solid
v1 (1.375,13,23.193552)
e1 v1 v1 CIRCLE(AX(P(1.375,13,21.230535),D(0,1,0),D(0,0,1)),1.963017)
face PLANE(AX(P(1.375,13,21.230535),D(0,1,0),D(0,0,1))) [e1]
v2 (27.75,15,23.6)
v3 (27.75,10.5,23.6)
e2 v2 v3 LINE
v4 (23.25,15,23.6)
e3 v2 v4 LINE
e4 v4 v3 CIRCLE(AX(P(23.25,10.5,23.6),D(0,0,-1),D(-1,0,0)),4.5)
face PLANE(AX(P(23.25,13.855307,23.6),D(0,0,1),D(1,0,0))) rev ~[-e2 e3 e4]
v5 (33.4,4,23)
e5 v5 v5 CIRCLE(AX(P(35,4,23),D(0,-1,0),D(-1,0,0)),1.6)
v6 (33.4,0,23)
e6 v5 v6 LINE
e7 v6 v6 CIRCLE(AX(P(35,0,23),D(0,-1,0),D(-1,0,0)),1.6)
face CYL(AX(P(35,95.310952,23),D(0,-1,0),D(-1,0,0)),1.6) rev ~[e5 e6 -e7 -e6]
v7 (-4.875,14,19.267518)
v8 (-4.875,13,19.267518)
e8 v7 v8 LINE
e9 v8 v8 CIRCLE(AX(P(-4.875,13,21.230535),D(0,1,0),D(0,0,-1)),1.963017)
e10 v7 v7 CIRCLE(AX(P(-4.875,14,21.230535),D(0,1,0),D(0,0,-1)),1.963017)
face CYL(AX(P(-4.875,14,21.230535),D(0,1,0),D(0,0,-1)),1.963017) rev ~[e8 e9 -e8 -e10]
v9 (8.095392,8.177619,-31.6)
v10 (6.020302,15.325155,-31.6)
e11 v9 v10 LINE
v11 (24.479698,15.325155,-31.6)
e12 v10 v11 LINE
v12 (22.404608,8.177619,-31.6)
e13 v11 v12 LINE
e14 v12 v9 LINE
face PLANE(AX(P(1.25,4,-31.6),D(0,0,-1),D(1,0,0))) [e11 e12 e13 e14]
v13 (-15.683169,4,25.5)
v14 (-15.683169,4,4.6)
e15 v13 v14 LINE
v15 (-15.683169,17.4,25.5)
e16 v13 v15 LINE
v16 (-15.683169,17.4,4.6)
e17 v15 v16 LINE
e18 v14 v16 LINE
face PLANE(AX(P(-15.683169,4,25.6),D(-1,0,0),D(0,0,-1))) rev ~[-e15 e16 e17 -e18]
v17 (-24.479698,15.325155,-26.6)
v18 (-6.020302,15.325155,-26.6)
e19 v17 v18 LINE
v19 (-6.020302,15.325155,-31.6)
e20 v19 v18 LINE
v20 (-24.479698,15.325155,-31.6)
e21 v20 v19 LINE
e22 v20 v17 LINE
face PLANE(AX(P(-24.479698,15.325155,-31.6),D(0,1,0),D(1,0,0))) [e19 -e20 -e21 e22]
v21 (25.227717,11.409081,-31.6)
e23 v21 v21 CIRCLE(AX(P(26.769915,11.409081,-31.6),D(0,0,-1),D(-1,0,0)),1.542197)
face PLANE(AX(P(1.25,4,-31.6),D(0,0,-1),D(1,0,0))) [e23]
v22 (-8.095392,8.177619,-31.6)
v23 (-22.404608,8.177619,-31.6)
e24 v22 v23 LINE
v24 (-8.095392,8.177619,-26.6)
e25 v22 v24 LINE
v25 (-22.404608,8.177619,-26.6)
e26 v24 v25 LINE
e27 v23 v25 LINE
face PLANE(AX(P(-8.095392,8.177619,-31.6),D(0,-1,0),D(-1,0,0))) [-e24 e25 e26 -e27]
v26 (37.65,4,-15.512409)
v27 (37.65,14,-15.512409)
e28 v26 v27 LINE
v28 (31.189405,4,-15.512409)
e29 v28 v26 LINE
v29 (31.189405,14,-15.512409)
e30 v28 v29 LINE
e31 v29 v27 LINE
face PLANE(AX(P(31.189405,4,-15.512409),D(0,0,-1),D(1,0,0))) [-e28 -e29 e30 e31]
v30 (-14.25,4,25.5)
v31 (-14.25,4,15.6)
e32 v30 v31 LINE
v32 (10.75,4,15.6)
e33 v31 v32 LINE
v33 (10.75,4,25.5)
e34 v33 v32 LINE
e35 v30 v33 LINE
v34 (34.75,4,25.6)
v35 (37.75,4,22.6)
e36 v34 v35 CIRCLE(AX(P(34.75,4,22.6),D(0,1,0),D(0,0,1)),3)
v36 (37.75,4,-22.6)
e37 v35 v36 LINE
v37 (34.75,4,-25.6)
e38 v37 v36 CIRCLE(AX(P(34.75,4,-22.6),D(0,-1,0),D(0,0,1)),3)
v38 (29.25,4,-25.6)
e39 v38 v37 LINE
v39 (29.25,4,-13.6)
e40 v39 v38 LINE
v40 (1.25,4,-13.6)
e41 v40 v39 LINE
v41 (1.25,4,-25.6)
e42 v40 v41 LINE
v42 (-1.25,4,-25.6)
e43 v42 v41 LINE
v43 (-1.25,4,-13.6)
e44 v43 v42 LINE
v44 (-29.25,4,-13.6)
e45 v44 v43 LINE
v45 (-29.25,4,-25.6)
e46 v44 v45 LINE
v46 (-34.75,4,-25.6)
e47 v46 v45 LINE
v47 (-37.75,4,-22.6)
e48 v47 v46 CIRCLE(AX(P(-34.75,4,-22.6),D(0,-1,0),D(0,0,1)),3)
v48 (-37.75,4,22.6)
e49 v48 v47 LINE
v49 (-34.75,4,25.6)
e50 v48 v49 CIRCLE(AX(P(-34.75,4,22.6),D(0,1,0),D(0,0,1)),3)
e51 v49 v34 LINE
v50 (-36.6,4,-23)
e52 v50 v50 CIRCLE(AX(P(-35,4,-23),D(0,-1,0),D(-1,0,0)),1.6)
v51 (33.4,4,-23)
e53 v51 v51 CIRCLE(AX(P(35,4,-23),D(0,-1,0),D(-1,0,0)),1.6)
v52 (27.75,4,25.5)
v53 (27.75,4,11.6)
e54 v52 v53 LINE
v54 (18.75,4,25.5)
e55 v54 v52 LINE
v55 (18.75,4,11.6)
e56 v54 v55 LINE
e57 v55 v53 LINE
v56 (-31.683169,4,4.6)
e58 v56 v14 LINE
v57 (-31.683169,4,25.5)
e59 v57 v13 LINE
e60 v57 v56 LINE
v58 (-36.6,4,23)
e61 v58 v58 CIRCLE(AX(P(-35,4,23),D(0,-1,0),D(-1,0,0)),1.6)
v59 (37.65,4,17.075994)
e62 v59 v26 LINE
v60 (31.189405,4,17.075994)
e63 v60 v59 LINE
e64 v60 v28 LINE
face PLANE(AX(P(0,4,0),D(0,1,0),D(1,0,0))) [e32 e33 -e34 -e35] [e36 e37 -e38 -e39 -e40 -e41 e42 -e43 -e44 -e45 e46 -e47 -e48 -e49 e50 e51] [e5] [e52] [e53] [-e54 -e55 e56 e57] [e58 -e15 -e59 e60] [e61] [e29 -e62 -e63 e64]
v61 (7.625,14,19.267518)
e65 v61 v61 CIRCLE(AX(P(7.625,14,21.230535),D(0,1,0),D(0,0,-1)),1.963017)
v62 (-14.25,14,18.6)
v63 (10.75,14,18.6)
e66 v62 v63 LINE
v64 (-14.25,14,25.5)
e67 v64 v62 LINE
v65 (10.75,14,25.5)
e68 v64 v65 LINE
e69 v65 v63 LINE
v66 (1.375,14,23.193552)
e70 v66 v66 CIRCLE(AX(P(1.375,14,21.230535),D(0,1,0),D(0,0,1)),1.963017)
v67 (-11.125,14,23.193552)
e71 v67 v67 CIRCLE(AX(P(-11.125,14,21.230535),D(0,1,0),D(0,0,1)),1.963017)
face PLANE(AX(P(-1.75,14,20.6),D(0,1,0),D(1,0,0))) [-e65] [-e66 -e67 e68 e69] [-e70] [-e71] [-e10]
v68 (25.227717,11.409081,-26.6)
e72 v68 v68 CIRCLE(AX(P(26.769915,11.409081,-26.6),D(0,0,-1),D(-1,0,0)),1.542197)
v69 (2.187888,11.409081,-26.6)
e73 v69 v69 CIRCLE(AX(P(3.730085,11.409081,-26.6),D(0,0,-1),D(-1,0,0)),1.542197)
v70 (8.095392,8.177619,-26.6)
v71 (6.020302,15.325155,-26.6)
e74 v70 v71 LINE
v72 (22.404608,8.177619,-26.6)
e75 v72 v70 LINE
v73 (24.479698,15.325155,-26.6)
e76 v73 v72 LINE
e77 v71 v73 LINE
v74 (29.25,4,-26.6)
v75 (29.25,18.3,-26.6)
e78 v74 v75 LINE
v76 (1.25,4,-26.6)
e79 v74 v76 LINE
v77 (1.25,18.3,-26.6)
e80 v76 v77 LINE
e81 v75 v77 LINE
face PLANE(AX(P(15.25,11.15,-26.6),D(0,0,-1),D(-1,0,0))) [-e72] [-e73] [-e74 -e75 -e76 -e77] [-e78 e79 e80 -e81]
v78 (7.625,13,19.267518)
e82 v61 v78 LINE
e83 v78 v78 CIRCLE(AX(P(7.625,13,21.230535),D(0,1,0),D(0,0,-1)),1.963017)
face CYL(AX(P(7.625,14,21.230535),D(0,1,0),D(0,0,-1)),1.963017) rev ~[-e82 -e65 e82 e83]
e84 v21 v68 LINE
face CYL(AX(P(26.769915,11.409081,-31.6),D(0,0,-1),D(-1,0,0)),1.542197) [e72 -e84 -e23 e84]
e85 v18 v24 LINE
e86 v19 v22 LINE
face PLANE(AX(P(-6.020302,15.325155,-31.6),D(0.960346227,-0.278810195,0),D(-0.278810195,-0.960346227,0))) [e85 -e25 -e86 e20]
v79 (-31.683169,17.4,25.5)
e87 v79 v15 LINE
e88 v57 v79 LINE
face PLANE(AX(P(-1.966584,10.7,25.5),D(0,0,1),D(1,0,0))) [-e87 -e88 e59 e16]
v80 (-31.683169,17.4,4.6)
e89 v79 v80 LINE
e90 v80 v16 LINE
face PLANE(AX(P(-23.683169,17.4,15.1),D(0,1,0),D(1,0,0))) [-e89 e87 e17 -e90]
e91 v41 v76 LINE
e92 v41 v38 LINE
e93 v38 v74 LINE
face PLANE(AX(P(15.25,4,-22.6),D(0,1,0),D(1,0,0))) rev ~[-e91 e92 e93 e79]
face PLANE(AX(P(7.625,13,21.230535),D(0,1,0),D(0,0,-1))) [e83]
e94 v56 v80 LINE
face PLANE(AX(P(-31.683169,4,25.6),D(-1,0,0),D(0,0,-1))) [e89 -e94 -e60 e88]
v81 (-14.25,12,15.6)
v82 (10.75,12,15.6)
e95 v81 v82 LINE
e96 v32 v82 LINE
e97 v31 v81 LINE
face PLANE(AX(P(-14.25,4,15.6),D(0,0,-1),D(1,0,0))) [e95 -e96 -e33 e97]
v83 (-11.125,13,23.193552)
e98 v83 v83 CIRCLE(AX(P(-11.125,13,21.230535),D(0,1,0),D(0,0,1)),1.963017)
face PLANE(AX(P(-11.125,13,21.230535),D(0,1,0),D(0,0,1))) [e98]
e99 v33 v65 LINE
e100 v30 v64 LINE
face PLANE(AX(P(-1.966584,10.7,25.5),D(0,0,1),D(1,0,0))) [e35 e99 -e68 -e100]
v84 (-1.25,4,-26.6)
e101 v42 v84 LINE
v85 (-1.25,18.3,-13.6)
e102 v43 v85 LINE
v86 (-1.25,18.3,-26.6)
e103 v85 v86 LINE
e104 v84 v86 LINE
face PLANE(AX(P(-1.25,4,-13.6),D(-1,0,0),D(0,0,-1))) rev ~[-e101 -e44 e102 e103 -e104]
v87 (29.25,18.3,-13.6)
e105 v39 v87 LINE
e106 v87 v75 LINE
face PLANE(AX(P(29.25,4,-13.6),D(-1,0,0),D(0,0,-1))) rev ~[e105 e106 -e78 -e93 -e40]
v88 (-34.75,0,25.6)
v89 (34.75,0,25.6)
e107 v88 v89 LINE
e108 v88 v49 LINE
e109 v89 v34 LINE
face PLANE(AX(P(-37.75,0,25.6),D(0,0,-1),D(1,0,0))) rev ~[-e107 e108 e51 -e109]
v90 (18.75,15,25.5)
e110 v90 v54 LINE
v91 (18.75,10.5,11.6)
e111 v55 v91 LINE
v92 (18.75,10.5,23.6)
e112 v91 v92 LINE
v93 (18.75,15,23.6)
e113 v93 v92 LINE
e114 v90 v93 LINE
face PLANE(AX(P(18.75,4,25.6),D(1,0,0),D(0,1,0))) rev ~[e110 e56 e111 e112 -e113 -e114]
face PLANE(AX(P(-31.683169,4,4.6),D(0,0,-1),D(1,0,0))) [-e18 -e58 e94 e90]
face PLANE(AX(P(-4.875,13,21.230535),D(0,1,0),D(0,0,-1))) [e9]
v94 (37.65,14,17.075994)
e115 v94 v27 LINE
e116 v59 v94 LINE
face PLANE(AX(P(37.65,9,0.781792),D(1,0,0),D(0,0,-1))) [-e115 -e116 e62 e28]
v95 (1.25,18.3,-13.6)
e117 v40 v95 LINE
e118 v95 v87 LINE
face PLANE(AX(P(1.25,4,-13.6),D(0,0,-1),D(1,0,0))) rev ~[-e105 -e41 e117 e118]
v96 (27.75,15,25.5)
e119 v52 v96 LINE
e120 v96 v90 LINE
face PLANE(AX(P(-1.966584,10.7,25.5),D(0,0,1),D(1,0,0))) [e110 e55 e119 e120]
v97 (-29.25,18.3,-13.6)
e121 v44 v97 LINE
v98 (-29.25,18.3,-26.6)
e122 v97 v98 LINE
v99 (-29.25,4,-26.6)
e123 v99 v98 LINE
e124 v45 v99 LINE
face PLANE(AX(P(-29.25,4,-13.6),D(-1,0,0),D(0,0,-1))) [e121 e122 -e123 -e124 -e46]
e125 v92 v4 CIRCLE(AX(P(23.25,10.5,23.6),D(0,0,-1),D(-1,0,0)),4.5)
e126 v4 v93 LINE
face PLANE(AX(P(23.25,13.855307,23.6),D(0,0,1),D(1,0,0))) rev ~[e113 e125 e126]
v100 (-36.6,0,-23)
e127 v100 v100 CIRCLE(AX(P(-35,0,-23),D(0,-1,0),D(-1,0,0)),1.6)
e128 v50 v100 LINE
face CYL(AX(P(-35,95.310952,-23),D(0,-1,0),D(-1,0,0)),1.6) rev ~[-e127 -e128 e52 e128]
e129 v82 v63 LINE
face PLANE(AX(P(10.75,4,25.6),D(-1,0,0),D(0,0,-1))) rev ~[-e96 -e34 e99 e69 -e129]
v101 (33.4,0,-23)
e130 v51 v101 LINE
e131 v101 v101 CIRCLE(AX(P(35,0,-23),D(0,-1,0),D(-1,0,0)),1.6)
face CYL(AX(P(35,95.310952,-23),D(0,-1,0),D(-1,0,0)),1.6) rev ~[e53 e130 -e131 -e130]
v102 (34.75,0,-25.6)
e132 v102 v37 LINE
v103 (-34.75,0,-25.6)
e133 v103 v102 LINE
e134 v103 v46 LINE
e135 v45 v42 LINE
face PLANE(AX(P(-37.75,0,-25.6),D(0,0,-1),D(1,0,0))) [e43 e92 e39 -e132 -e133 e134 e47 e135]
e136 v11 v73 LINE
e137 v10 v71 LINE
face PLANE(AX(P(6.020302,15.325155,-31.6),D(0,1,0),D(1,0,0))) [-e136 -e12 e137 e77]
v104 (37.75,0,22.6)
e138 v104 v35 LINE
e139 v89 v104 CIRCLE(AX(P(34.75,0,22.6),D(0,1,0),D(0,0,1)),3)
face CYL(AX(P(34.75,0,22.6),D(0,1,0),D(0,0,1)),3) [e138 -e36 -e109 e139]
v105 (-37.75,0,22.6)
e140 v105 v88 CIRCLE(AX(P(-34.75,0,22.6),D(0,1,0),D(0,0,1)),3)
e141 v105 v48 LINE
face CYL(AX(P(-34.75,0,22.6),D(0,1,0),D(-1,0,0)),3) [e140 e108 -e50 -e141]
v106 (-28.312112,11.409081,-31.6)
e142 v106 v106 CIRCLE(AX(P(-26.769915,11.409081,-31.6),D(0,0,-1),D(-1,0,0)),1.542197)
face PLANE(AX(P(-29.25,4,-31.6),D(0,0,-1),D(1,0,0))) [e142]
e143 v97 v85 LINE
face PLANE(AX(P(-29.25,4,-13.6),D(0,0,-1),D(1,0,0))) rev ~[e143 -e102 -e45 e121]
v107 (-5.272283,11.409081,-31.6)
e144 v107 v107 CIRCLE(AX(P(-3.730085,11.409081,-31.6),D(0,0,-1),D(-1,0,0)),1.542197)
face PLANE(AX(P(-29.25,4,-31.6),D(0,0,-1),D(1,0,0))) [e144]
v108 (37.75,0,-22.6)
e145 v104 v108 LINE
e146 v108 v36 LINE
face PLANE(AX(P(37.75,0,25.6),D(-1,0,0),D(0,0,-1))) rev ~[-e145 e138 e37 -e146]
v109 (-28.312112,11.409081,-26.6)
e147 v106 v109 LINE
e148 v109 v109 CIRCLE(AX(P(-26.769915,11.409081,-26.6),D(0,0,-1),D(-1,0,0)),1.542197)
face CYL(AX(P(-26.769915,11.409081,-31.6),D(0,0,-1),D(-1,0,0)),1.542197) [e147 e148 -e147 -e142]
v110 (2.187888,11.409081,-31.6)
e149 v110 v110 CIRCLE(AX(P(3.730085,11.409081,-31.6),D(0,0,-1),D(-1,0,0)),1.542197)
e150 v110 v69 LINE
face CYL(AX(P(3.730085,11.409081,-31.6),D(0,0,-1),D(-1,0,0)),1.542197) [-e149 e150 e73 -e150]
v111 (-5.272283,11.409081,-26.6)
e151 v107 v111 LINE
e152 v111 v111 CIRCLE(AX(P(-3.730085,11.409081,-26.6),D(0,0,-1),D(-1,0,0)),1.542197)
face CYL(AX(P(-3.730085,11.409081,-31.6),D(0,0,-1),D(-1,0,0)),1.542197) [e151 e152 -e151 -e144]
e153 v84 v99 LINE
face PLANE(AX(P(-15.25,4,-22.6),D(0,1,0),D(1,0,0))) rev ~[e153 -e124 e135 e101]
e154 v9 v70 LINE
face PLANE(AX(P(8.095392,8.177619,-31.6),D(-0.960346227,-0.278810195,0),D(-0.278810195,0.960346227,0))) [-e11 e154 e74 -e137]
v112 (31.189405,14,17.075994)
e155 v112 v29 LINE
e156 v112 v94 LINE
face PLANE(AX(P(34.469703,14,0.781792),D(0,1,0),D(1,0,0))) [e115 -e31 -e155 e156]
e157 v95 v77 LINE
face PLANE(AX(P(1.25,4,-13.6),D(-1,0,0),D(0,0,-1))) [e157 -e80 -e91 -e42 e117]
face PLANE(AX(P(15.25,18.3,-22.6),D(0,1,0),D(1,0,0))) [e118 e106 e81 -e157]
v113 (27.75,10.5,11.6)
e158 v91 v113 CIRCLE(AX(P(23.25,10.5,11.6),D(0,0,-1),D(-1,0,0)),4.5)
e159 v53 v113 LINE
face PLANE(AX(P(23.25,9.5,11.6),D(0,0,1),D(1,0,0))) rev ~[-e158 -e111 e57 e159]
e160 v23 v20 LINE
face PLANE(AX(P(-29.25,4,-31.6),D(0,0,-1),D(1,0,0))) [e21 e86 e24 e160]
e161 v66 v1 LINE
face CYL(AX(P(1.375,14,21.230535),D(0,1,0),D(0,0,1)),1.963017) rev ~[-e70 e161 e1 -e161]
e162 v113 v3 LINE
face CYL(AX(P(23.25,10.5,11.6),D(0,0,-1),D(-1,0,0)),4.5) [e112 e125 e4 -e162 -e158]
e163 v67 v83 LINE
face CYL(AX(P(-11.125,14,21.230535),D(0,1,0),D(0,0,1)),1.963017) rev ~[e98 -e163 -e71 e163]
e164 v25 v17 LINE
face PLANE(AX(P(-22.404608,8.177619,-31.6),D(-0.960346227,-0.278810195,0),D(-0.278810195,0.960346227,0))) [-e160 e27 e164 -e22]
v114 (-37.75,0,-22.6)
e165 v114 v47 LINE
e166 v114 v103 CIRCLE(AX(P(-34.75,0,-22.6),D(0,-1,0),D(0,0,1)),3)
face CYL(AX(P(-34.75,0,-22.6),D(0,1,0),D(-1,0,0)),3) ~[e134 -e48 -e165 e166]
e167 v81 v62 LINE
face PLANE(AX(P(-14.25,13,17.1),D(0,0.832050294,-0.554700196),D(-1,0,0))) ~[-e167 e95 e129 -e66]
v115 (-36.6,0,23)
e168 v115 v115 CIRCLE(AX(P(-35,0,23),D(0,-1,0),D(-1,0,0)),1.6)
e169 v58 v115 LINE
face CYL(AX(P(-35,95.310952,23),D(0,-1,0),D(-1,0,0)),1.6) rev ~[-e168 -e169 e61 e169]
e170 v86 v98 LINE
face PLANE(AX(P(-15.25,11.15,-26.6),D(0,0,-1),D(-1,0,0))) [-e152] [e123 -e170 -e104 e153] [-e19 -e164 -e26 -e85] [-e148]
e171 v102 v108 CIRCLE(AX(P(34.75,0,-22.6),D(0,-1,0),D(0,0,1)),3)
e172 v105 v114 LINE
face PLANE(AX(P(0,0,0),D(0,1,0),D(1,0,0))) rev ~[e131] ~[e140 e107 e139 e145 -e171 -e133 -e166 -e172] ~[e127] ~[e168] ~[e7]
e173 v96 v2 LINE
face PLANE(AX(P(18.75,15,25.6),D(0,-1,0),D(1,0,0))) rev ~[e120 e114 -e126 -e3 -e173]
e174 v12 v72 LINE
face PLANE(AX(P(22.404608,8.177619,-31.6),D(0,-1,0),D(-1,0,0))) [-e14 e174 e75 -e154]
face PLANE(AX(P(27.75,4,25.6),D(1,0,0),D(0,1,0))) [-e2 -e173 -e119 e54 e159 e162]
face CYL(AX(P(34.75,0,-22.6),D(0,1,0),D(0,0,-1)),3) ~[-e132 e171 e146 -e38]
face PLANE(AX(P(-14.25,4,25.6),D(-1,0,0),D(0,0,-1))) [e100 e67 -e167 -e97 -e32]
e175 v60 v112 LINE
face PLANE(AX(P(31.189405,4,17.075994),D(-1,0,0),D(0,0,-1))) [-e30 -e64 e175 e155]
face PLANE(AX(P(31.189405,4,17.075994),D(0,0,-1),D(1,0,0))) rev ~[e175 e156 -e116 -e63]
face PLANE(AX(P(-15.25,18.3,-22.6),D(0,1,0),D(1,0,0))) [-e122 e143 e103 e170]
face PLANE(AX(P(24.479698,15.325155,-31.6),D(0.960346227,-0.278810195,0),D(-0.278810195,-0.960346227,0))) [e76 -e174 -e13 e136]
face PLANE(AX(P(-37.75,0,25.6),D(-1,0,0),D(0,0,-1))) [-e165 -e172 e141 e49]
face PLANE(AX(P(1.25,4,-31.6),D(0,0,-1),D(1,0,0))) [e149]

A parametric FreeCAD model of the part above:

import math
import FreeCAD as App
import Part
import Sketcher

V = App.Vector


def edges_at(feature, points):
    """Names of the edges that pass closest to the given points."""
    edges = feature.Shape.Edges
    near = lambda p: min(range(len(edges)), key=lambda i: edges[i].distToShape(Part.Vertex(*p))[0])
    return sorted({f"Edge{near(p) + 1}" for p in points})

doc = App.newDocument("Part")
params = doc.addObject("Spreadsheet::Sheet", "Params")
for row, (alias, value) in enumerate([
    ("sketch1_width", "75.5 mm"),
    ("sketch1_height", "51.2 mm"),
    ("pad1_length", "4 mm"),
    ("sketch2_diameter", "3.2 mm"),
    ("hole_diameter", "3.2 mm"),
    ("fillet_radius", "3 mm"),
    ("sketch3_width", "9 mm"),
    ("sketch3_height", "11 mm"),
    ("pad2_length", "14 mm"),
    ("sketch4_radius", "4.5 mm"),
    ("sketch4_width", "1 mm"),
    ("sketch4_height", "5.5 mm"),
    ("pocket1_length", "12 mm"),
    ("sketch5_width", "25 mm"),
    ("sketch5_height", "10 mm"),
    ("pad3_length", "10 mm"),
    ("pocket2_length", "1 mm"),
    ("chamfer_size", "2 mm"),
    ("chamfer_size2", "3 mm"),
    ("pad4_length", "10 mm"),
    ("sketch8_width", "28 mm"),
    ("sketch8_height", "18 mm"),
    ("pad5_length", "14.3 mm"),
    ("sketch9_width", "28 mm"),
    ("sketch9_height", "14.3 mm"),
    ("pocket3_length", "5 mm"),
    ("sketch10_width", "16 mm"),
    ("sketch10_height", "21 mm"),
    ("pad6_length", "13.4 mm"),
    ("sketch11_height", "13.4 mm"),
    ("pocket4_length", "0.1 mm"),
    ("sketch12_width", "10 mm"),
    ("pocket5_length", "0.1 mm"),
], start=1):
    params.set(f"A{row}", alias)
    params.set(f"B{row}", "=" + value)
    params.setAlias(f"B{row}", alias)

body = doc.addObject("PartDesign::Body", "Body")

# Sketch on XZ plane
sketch1 = body.newObject("Sketcher::SketchObject", "Sketch")
sketch1.AttachmentSupport = (doc.getObject("XZ_Plane"), [""])
sketch1.MapMode = "FlatFace"
sketch1.addGeometry([
    Part.LineSegment(V(-38, -26, 0), V(-38, 26, 0)),
    Part.LineSegment(V(-38, 26, 0), V(38, 26, 0)),
    Part.LineSegment(V(38, 26, 0), V(38, -26, 0)),
    Part.LineSegment(V(38, -26, 0), V(-38, -26, 0)),
], False)
sketch1.addConstraint([
    Sketcher.Constraint("Coincident", 0, 2, 1, 1),
    Sketcher.Constraint("Coincident", 1, 2, 2, 1),
    Sketcher.Constraint("Coincident", 2, 2, 3, 1),
    Sketcher.Constraint("Coincident", 3, 2, 0, 1),
    Sketcher.Constraint("Vertical", 0),
    Sketcher.Constraint("Horizontal", 1),
    Sketcher.Constraint("Vertical", 2),
    Sketcher.Constraint("Horizontal", 3),
    Sketcher.Constraint("Symmetric", 0, 2, 2, 2, -1, 1),
    Sketcher.Constraint("DistanceX", 1, 1, 1, 2, 75.5),
    Sketcher.Constraint("DistanceY", 0, 1, 0, 2, 51.2),
])
sketch1.setExpression("Constraints[9]", "Params.sketch1_width")
sketch1.setExpression("Constraints[10]", "Params.sketch1_height")
pad1 = body.newObject("PartDesign::Pad", "Pad")
pad1.Profile = sketch1
pad1.setExpression("Length", "Params.pad1_length")
pad1.Reversed = True

# Sketch on XZ plane
sketch2 = body.newObject("Sketcher::SketchObject", "Sketch001")
sketch2.AttachmentSupport = (doc.getObject("XZ_Plane"), [""])
sketch2.MapMode = "FlatFace"
sketch2.AttachmentOffset = App.Placement(V(0, 0, -4), App.Rotation())
sketch2.addGeometry([
    Part.Circle(V(-35, -23, 0), V(0, 0, 1), 1.6),
    Part.Circle(V(35, -23, 0), V(0, 0, 1), 1.6),
    Part.Circle(V(-35, 23, 0), V(0, 0, 1), 1.6),
    Part.Circle(V(35, 23, 0), V(0, 0, 1), 1.6),
], False)
sketch2.addConstraint([
    Sketcher.Constraint("Equal", 0, 1),
    Sketcher.Constraint("Equal", 1, 2),
    Sketcher.Constraint("Equal", 2, 3),
    Sketcher.Constraint("Symmetric", 1, 3, 2, 3, -1, 1),
    Sketcher.Constraint("Symmetric", 0, 3, 3, 3, -1, 1),
    Sketcher.Constraint("Symmetric", 0, 3, 1, 3, -2),
    Sketcher.Constraint("Diameter", 0, 3.2),
    Sketcher.Constraint("DistanceX", 0, 3, -1, 1, 35.0),
    Sketcher.Constraint("DistanceY", 0, 3, -1, 1, 23.0),
])
sketch2.setExpression("Constraints[6]", "Params.sketch2_diameter")
doc.recompute()
hole = body.newObject("PartDesign::Hole", "Hole")
hole.Profile = sketch2
hole.ThreadType = "None"
hole.setExpression("Diameter", "Params.hole_diameter")
hole.DepthType = "ThroughAll"
hole.Reversed = True
doc.recompute()

fillet = body.newObject("PartDesign::Fillet", "Fillet")
fillet.Base = (hole, edges_at(hole, [
    (-37.75, 2, -25.6),
    (37.75, 2, -25.6),
    (37.75, 2, 25.6),
    (-37.75, 2, 25.6),
]))
fillet.setExpression("Radius", "Params.fillet_radius")

# Sketch on XY plane
sketch3 = body.newObject("Sketcher::SketchObject", "Sketch002")
sketch3.AttachmentSupport = (doc.getObject("XY_Plane"), [""])
sketch3.MapMode = "FlatFace"
sketch3.AttachmentOffset = App.Placement(V(0, 0, 25.6), App.Rotation())
sketch3.addGeometry([
    Part.LineSegment(V(19, 15, 0), V(19, 4, 0)),
    Part.LineSegment(V(19, 4, 0), V(28, 4, 0)),
    Part.LineSegment(V(28, 4, 0), V(28, 15, 0)),
    Part.LineSegment(V(28, 15, 0), V(19, 15, 0)),
], False)
sketch3.addConstraint([
    Sketcher.Constraint("Coincident", 0, 2, 1, 1),
    Sketcher.Constraint("Coincident", 1, 2, 2, 1),
    Sketcher.Constraint("Coincident", 2, 2, 3, 1),
    Sketcher.Constraint("Coincident", 3, 2, 0, 1),
    Sketcher.Constraint("Vertical", 0),
    Sketcher.Constraint("Horizontal", 1),
    Sketcher.Constraint("Vertical", 2),
    Sketcher.Constraint("Horizontal", 3),
    Sketcher.Constraint("DistanceX", 1, 1, 1, 2, 9.0),
    Sketcher.Constraint("DistanceY", 0, 2, 0, 1, 11.0),
    Sketcher.Constraint("DistanceY", -1, 1, 0, 2, 4.0),
    Sketcher.Constraint("DistanceX", -1, 1, 0, 2, 18.75),
])
sketch3.setExpression("Constraints[8]", "Params.sketch3_width")
sketch3.setExpression("Constraints[9]", "Params.sketch3_height")
pad2 = body.newObject("PartDesign::Pad", "Pad001")
pad2.Profile = sketch3
pad2.setExpression("Length", "Params.pad2_length")
pad2.Reversed = True

# Sketch on XY plane
sketch4 = body.newObject("Sketcher::SketchObject", "Sketch003")
sketch4.AttachmentSupport = (doc.getObject("XY_Plane"), [""])
sketch4.MapMode = "FlatFace"
sketch4.AttachmentOffset = App.Placement(V(0, 0, 11.6), App.Rotation())
sketch4.addGeometry([
    Part.LineSegment(V(28.8, 10.5, 0), V(27.8, 10.5, 0)),  # 0
    Part.ArcOfCircle(Part.Circle(V(23.2, 10.5, 0), V(0, 0, 1), 4.5), math.radians(0), math.radians(180)),  # 1
    Part.LineSegment(V(18.8, 10.5, 0), V(17.8, 10.5, 0)),  # 2
    Part.LineSegment(V(17.8, 10.5, 0), V(17.8, 16, 0)),  # 3
    Part.LineSegment(V(17.8, 16, 0), V(28.8, 16, 0)),  # 4
    Part.LineSegment(V(28.8, 16, 0), V(28.8, 10.5, 0)),  # 5
], False)
sketch4.addConstraint([
    Sketcher.Constraint("Coincident", 0, 2, 1, 1),
    Sketcher.Constraint("Coincident", 1, 2, 2, 1),
    Sketcher.Constraint("Coincident", 2, 2, 3, 1),
    Sketcher.Constraint("Coincident", 3, 2, 4, 1),
    Sketcher.Constraint("Coincident", 4, 2, 5, 1),
    Sketcher.Constraint("Coincident", 5, 2, 0, 1),
    Sketcher.Constraint("Horizontal", 0),
    Sketcher.Constraint("Horizontal", 2),
    Sketcher.Constraint("Vertical", 3),
    Sketcher.Constraint("Horizontal", 4),
    Sketcher.Constraint("Vertical", 5),
    Sketcher.Constraint("Horizontal", 1, 3, 0, 2),
    Sketcher.Constraint("Horizontal", 0, 2, 1, 2),
    Sketcher.Constraint("Equal", 0, 2),
    Sketcher.Constraint("Radius", 1, 4.5),
    Sketcher.Constraint("DistanceX", 0, 2, 0, 1, 1.0),
    Sketcher.Constraint("DistanceY", 3, 1, 3, 2, 5.5),
    Sketcher.Constraint("DistanceY", -1, 1, 3, 2, 16.0),
    Sketcher.Constraint("DistanceX", -1, 1, 1, 3, 23.25),
])
sketch4.setExpression("Constraints[14]", "Params.sketch4_radius")
sketch4.setExpression("Constraints[15]", "Params.sketch4_width")
sketch4.setExpression("Constraints[16]", "Params.sketch4_height")
pocket1 = body.newObject("PartDesign::Pocket", "Pocket")
pocket1.Profile = sketch4
pocket1.setExpression("Length", "Params.pocket1_length")
pocket1.Reversed = True

# Sketch on XZ plane
sketch5 = body.newObject("Sketcher::SketchObject", "Sketch004")
sketch5.AttachmentSupport = (doc.getObject("XZ_Plane"), [""])
sketch5.MapMode = "FlatFace"
sketch5.AttachmentOffset = App.Placement(V(0, 0, -4), App.Rotation())
sketch5.addGeometry([
    Part.LineSegment(V(-14, 16, 0), V(-14, 26, 0)),
    Part.LineSegment(V(-14, 26, 0), V(11, 26, 0)),
    Part.LineSegment(V(11, 26, 0), V(11, 16, 0)),
    Part.LineSegment(V(11, 16, 0), V(-14, 16, 0)),
], False)
sketch5.addConstraint([
    Sketcher.Constraint("Coincident", 0, 2, 1, 1),
    Sketcher.Constraint("Coincident", 1, 2, 2, 1),
    Sketcher.Constraint("Coincident", 2, 2, 3, 1),
    Sketcher.Constraint("Coincident", 3, 2, 0, 1),
    Sketcher.Constraint("Vertical", 0),
    Sketcher.Constraint("Horizontal", 1),
    Sketcher.Constraint("Vertical", 2),
    Sketcher.Constraint("Horizontal", 3),
    Sketcher.Constraint("DistanceX", 1, 1, 1, 2, 25.0),
    Sketcher.Constraint("DistanceY", 0, 1, 0, 2, 10.0),
    Sketcher.Constraint("DistanceY", -1, 1, 0, 2, 25.6),
    Sketcher.Constraint("DistanceX", 0, 2, -1, 1, 14.25),
])
sketch5.setExpression("Constraints[8]", "Params.sketch5_width")
sketch5.setExpression("Constraints[9]", "Params.sketch5_height")
pad3 = body.newObject("PartDesign::Pad", "Pad002")
pad3.Profile = sketch5
pad3.setExpression("Length", "Params.pad3_length")
pad3.Reversed = True

# Sketch on XZ plane
sketch6 = body.newObject("Sketcher::SketchObject", "Sketch005")
sketch6.AttachmentSupport = (doc.getObject("XZ_Plane"), [""])
sketch6.MapMode = "FlatFace"
sketch6.AttachmentOffset = App.Placement(V(0, 0, -14), App.Rotation())
sketch6.addGeometry([
    Part.Circle(V(-11.1, 21.2, 0), V(0, 0, 1), 2),
    Part.Circle(V(-4.9, 21.2, 0), V(0, 0, 1), 2),
    Part.Circle(V(7.6, 21.2, 0), V(0, 0, 1), 2),
    Part.Circle(V(1.4, 21.2, 0), V(0, 0, 1), 2),
], False)
sketch6.addConstraint([
    Sketcher.Constraint("Equal", 0, 1),
    Sketcher.Constraint("Equal", 1, 2),
    Sketcher.Constraint("Equal", 2, 3),
    Sketcher.Constraint("Horizontal", 0, 3, 1, 3),
    Sketcher.Constraint("Horizontal", 1, 3, 2, 3),
    Sketcher.Constraint("Horizontal", 2, 3, 3, 3),
    Sketcher.Constraint("DistanceX", 1, 3, 2, 3, 12.5),
    Sketcher.Constraint("DistanceX", 0, 3, 3, 3, 12.5),
    Sketcher.Constraint("DistanceX", 0, 3, 1, 3, 6.25),
    Sketcher.Constraint("Diameter", 0, 3.926034),
    Sketcher.Constraint("DistanceX", 0, 3, -1, 1, 11.125),
    Sketcher.Constraint("DistanceY", -1, 1, 0, 3, 21.230535),
])
pocket2 = body.newObject("PartDesign::Pocket", "Pocket001")
pocket2.Profile = sketch6
pocket2.setExpression("Length", "Params.pocket2_length")
pocket2.Reversed = True
doc.recompute()

chamfer = body.newObject("PartDesign::Chamfer", "Chamfer")
chamfer.Base = (pocket2, edges_at(pocket2, [(-1.75, 14, 15.6)]))
chamfer.ChamferType = "Two distances"
chamfer.setExpression("Size", "Params.chamfer_size")
chamfer.setExpression("Size2", "Params.chamfer_size2")

# Sketch on XZ plane
sketch7 = body.newObject("Sketcher::SketchObject", "Sketch006")
sketch7.AttachmentSupport = (doc.getObject("XZ_Plane"), [""])
sketch7.MapMode = "FlatFace"
sketch7.AttachmentOffset = App.Placement(V(0, 0, -4), App.Rotation())
sketch7.addGeometry([
    Part.LineSegment(V(31, -16, 0), V(31, 17, 0)),
    Part.LineSegment(V(31, 17, 0), V(38, 17, 0)),
    Part.LineSegment(V(38, 17, 0), V(38, -16, 0)),
    Part.LineSegment(V(38, -16, 0), V(31, -16, 0)),
], False)
sketch7.addConstraint([
    Sketcher.Constraint("Coincident", 0, 2, 1, 1),
    Sketcher.Constraint("Coincident", 1, 2, 2, 1),
    Sketcher.Constraint("Coincident", 2, 2, 3, 1),
    Sketcher.Constraint("Coincident", 3, 2, 0, 1),
    Sketcher.Constraint("Vertical", 0),
    Sketcher.Constraint("Horizontal", 1),
    Sketcher.Constraint("Vertical", 2),
    Sketcher.Constraint("Horizontal", 3),
    Sketcher.Constraint("DistanceX", -1, 1, 1, 2, 37.75),
    Sketcher.Constraint("DistanceX", 1, 1, 1, 2, 6.560595),
    Sketcher.Constraint("DistanceY", 0, 1, 0, 2, 32.588402),
    Sketcher.Constraint("DistanceY", 2, 2, -1, 1, 15.512409),
])
pad4 = body.newObject("PartDesign::Pad", "Pad003")
pad4.Profile = sketch7
pad4.setExpression("Length", "Params.pad4_length")
pad4.Reversed = True

# Sketch on XZ plane
sketch8 = body.newObject("Sketcher::SketchObject", "Sketch007")
sketch8.AttachmentSupport = (doc.getObject("XZ_Plane"), [""])
sketch8.MapMode = "FlatFace"
sketch8.AttachmentOffset = App.Placement(V(0, 0, -4), App.Rotation())
sketch8.addGeometry([
    Part.LineSegment(V(-29, -32, 0), V(-29, -14, 0)),  # 0
    Part.LineSegment(V(-29, -14, 0), V(-1, -14, 0)),  # 1
    Part.LineSegment(V(-1, -14, 0), V(-1, -32, 0)),  # 2
    Part.LineSegment(V(-1, -32, 0), V(-29, -32, 0)),  # 3
    Part.LineSegment(V(1, -32, 0), V(1, -14, 0)),  # 4
    Part.LineSegment(V(1, -14, 0), V(29, -14, 0)),  # 5
    Part.LineSegment(V(29, -14, 0), V(29, -32, 0)),  # 6
    Part.LineSegment(V(29, -32, 0), V(1, -32, 0)),  # 7
], False)
sketch8.addConstraint([
    Sketcher.Constraint("Coincident", 0, 2, 1, 1),
    Sketcher.Constraint("Coincident", 1, 2, 2, 1),
    Sketcher.Constraint("Coincident", 2, 2, 3, 1),
    Sketcher.Constraint("Coincident", 3, 2, 0, 1),
    Sketcher.Constraint("Coincident", 4, 2, 5, 1),
    Sketcher.Constraint("Coincident", 5, 2, 6, 1),
    Sketcher.Constraint("Coincident", 6, 2, 7, 1),
    Sketcher.Constraint("Coincident", 7, 2, 4, 1),
    Sketcher.Constraint("Vertical", 0),
    Sketcher.Constraint("Horizontal", 1),
    Sketcher.Constraint("Vertical", 2),
    Sketcher.Constraint("Horizontal", 3),
    Sketcher.Constraint("Vertical", 4),
    Sketcher.Constraint("Horizontal", 5),
    Sketcher.Constraint("Vertical", 6),
    Sketcher.Constraint("Horizontal", 7),
    Sketcher.Constraint("Symmetric", 1, 2, 4, 2, -2),
    Sketcher.Constraint("Symmetric", 3, 2, 6, 2, -2),
    Sketcher.Constraint("DistanceX", 1, 1, 1, 2, 28.0),
    Sketcher.Constraint("DistanceY", 0, 1, 0, 2, 18.0),
    Sketcher.Constraint("DistanceY", 0, 2, -1, 1, 13.6),
    Sketcher.Constraint("DistanceX", 1, 2, 4, 2, 2.5),
])
sketch8.setExpression("Constraints[18]", "Params.sketch8_width")
sketch8.setExpression("Constraints[19]", "Params.sketch8_height")
pad5 = body.newObject("PartDesign::Pad", "Pad004")
pad5.Profile = sketch8
pad5.setExpression("Length", "Params.pad5_length")
pad5.Reversed = True

# Sketch on XY plane
sketch9 = body.newObject("Sketcher::SketchObject", "Sketch008")
sketch9.AttachmentSupport = (doc.getObject("XY_Plane"), [""])
sketch9.MapMode = "FlatFace"
sketch9.AttachmentOffset = App.Placement(V(0, 0, -31.6), App.Rotation())
sketch9.addGeometry([
    Part.LineSegment(V(29.2, 18.3, 0), V(29.2, 4, 0)),  # 0
    Part.LineSegment(V(29.2, 4, 0), V(1.2, 4, 0)),  # 1
    Part.LineSegment(V(1.2, 4, 0), V(1.2, 18.3, 0)),  # 2
    Part.LineSegment(V(1.2, 18.3, 0), V(29.2, 18.3, 0)),  # 3
    Part.Circle(V(26.8, 11.4, 0), V(0, 0, 1), 1.5),  # 4
    Part.Circle(V(3.7, 11.4, 0), V(0, 0, 1), 1.5),  # 5
    Part.LineSegment(V(8.1, 8.2, 0), V(22.4, 8.2, 0)),  # 6
    Part.LineSegment(V(22.4, 8.2, 0), V(24.5, 15.3, 0)),  # 7
    Part.LineSegment(V(24.5, 15.3, 0), V(6, 15.3, 0)),  # 8
    Part.LineSegment(V(6, 15.3, 0), V(8.1, 8.2, 0)),  # 9
    Part.LineSegment(V(-1.2, 18.3, 0), V(-1.2, 4, 0)),  # 10
    Part.LineSegment(V(-1.2, 4, 0), V(-29.2, 4, 0)),  # 11
    Part.LineSegment(V(-29.2, 4, 0), V(-29.2, 18.3, 0)),  # 12
    Part.LineSegment(V(-29.2, 18.3, 0), V(-1.2, 18.3, 0)),  # 13
    Part.Circle(V(-3.7, 11.4, 0), V(0, 0, 1), 1.5),  # 14
    Part.Circle(V(-26.8, 11.4, 0), V(0, 0, 1), 1.5),  # 15
    Part.LineSegment(V(-8.1, 8.2, 0), V(-6, 15.3, 0)),  # 16
    Part.LineSegment(V(-6, 15.3, 0), V(-24.5, 15.3, 0)),  # 17
    Part.LineSegment(V(-24.5, 15.3, 0), V(-22.4, 8.2, 0)),  # 18
    Part.LineSegment(V(-22.4, 8.2, 0), V(-8.1, 8.2, 0)),  # 19
], False)
sketch9.addConstraint([
    Sketcher.Constraint("Coincident", 0, 2, 1, 1),
    Sketcher.Constraint("Coincident", 1, 2, 2, 1),
    Sketcher.Constraint("Coincident", 2, 2, 3, 1),
    Sketcher.Constraint("Coincident", 3, 2, 0, 1),
    Sketcher.Constraint("Coincident", 6, 2, 7, 1),
    Sketcher.Constraint("Coincident", 7, 2, 8, 1),
    Sketcher.Constraint("Coincident", 8, 2, 9, 1),
    Sketcher.Constraint("Coincident", 9, 2, 6, 1),
    Sketcher.Constraint("Coincident", 10, 2, 11, 1),
    Sketcher.Constraint("Coincident", 11, 2, 12, 1),
    Sketcher.Constraint("Coincident", 12, 2, 13, 1),
    Sketcher.Constraint("Coincident", 13, 2, 10, 1),
    Sketcher.Constraint("Coincident", 16, 2, 17, 1),
    Sketcher.Constraint("Coincident", 17, 2, 18, 1),
    Sketcher.Constraint("Coincident", 18, 2, 19, 1),
    Sketcher.Constraint("Coincident", 19, 2, 16, 1),
    Sketcher.Constraint("Vertical", 0),
    Sketcher.Constraint("Horizontal", 1),
    Sketcher.Constraint("Vertical", 2),
    Sketcher.Constraint("Horizontal", 3),
    Sketcher.Constraint("Horizontal", 6),
    Sketcher.Constraint("Horizontal", 8),
    Sketcher.Constraint("Vertical", 10),
    Sketcher.Constraint("Horizontal", 11),
    Sketcher.Constraint("Vertical", 12),
    Sketcher.Constraint("Horizontal", 13),
    Sketcher.Constraint("Horizontal", 17),
    Sketcher.Constraint("Horizontal", 19),
    Sketcher.Constraint("Equal", 4, 5),
    Sketcher.Constraint("Equal", 5, 14),
    Sketcher.Constraint("Equal", 14, 15),
    Sketcher.Constraint("Symmetric", 5, 3, 14, 3, -2),
    Sketcher.Constraint("Symmetric", 4, 3, 15, 3, -2),
    Sketcher.Constraint("Symmetric", 1, 2, 10, 2, -2),
    Sketcher.Constraint("Symmetric", 3, 2, 12, 2, -2),
    Sketcher.Constraint("Symmetric", 8, 2, 16, 2, -2),
    Sketcher.Constraint("Symmetric", 6, 2, 18, 2, -2),
    Sketcher.Constraint("Parallel", 7, 16),
    Sketcher.Constraint("Parallel", 9, 18),
    Sketcher.Constraint("Horizontal", 4, 3, 5, 3),
    Sketcher.Constraint("Equal", 8, 17),
    Sketcher.Constraint("DistanceX", 1, 2, 1, 1, 28.0),
    Sketcher.Constraint("DistanceY", 0, 2, 0, 1, 14.3),
    Sketcher.Constraint("DistanceY", -1, 1, 0, 2, 4.0),
    Sketcher.Constraint("DistanceX", 14, 3, 4, 3, 30.5),
    Sketcher.Constraint("DistanceX", 10, 2, 1, 2, 2.5),
    Sketcher.Constraint("Diameter", 4, 3.084395),
    Sketcher.Constraint("DistanceX", -1, 1, 7, 2, 24.479698),
    Sketcher.Constraint("DistanceX", -1, 1, 8, 2, 6.020302),
    Sketcher.Constraint("DistanceX", 6, 1, 6, 2, 14.309215),
    Sketcher.Constraint("DistanceY", -1, 1, 4, 3, 11.409081),
    Sketcher.Constraint("DistanceY", -1, 1, 6, 2, 8.177619),
    Sketcher.Constraint("DistanceX", 5, 3, 4, 3, 23.039829),
    Sketcher.Constraint("Distance", 7, 7.442665),
])
sketch9.setExpression("Constraints[41]", "Params.sketch9_width")
sketch9.setExpression("Constraints[42]", "Params.sketch9_height")
pocket3 = body.newObject("PartDesign::Pocket", "Pocket002")
pocket3.Profile = sketch9
pocket3.setExpression("Length", "Params.pocket3_length")
pocket3.Reversed = True

# Sketch on XZ plane
sketch10 = body.newObject("Sketcher::SketchObject", "Sketch009")
sketch10.AttachmentSupport = (doc.getObject("XZ_Plane"), [""])
sketch10.MapMode = "FlatFace"
sketch10.AttachmentOffset = App.Placement(V(0, 0, -4), App.Rotation())
sketch10.addGeometry([
    Part.LineSegment(V(-32, 5, 0), V(-32, 26, 0)),
    Part.LineSegment(V(-32, 26, 0), V(-16, 26, 0)),
    Part.LineSegment(V(-16, 26, 0), V(-16, 5, 0)),
    Part.LineSegment(V(-16, 5, 0), V(-32, 5, 0)),
], False)
sketch10.addConstraint([
    Sketcher.Constraint("Coincident", 0, 2, 1, 1),
    Sketcher.Constraint("Coincident", 1, 2, 2, 1),
    Sketcher.Constraint("Coincident", 2, 2, 3, 1),
    Sketcher.Constraint("Coincident", 3, 2, 0, 1),
    Sketcher.Constraint("Vertical", 0),
    Sketcher.Constraint("Horizontal", 1),
    Sketcher.Constraint("Vertical", 2),
    Sketcher.Constraint("Horizontal", 3),
    Sketcher.Constraint("DistanceX", 1, 1, 1, 2, 16.0),
    Sketcher.Constraint("DistanceY", 0, 1, 0, 2, 21.0),
    Sketcher.Constraint("DistanceY", -1, 1, 0, 2, 25.6),
    Sketcher.Constraint("DistanceX", 0, 2, -1, 1, 31.683169),
])
sketch10.setExpression("Constraints[8]", "Params.sketch10_width")
sketch10.setExpression("Constraints[9]", "Params.sketch10_height")
pad6 = body.newObject("PartDesign::Pad", "Pad005")
pad6.Profile = sketch10
pad6.setExpression("Length", "Params.pad6_length")
pad6.Reversed = True

# Sketch on XY plane
sketch11 = body.newObject("Sketcher::SketchObject", "Sketch010")
sketch11.AttachmentSupport = (doc.getObject("XY_Plane"), [""])
sketch11.MapMode = "FlatFace"
sketch11.AttachmentOffset = App.Placement(V(0, 0, 25.6), App.Rotation())
sketch11.addGeometry([
    Part.LineSegment(V(-32, 17, 0), V(-32, 4, 0)),
    Part.LineSegment(V(-32, 4, 0), V(28, 4, 0)),
    Part.LineSegment(V(28, 4, 0), V(28, 17, 0)),
    Part.LineSegment(V(28, 17, 0), V(-32, 17, 0)),
], False)
sketch11.addConstraint([
    Sketcher.Constraint("Coincident", 0, 2, 1, 1),
    Sketcher.Constraint("Coincident", 1, 2, 2, 1),
    Sketcher.Constraint("Coincident", 2, 2, 3, 1),
    Sketcher.Constraint("Coincident", 3, 2, 0, 1),
    Sketcher.Constraint("Vertical", 0),
    Sketcher.Constraint("Horizontal", 1),
    Sketcher.Constraint("Vertical", 2),
    Sketcher.Constraint("Horizontal", 3),
    Sketcher.Constraint("DistanceY", 0, 2, 0, 1, 13.4),
    Sketcher.Constraint("DistanceY", -1, 1, 0, 2, 4.0),
    Sketcher.Constraint("DistanceX", -1, 1, 1, 2, 27.75),
    Sketcher.Constraint("DistanceX", 1, 1, 1, 2, 59.433169),
])
sketch11.setExpression("Constraints[8]", "Params.sketch11_height")
pocket4 = body.newObject("PartDesign::Pocket", "Pocket003")
pocket4.Profile = sketch11
pocket4.setExpression("Length", "Params.pocket4_length")

# Sketch on YZ plane
sketch12 = body.newObject("Sketcher::SketchObject", "Sketch011")
sketch12.AttachmentSupport = (doc.getObject("YZ_Plane"), [""])
sketch12.MapMode = "FlatFace"
sketch12.AttachmentOffset = App.Placement(V(0, 0, 37.75), App.Rotation())
sketch12.addGeometry([
    Part.LineSegment(V(14, 17, 0), V(4, 17, 0)),
    Part.LineSegment(V(4, 17, 0), V(4, -16, 0)),
    Part.LineSegment(V(4, -16, 0), V(14, -16, 0)),
    Part.LineSegment(V(14, -16, 0), V(14, 17, 0)),
], False)
sketch12.addConstraint([
    Sketcher.Constraint("Coincident", 0, 2, 1, 1),
    Sketcher.Constraint("Coincident", 1, 2, 2, 1),
    Sketcher.Constraint("Coincident", 2, 2, 3, 1),
    Sketcher.Constraint("Coincident", 3, 2, 0, 1),
    Sketcher.Constraint("Horizontal", 0),
    Sketcher.Constraint("Vertical", 1),
    Sketcher.Constraint("Horizontal", 2),
    Sketcher.Constraint("Vertical", 3),
    Sketcher.Constraint("DistanceX", 0, 2, 0, 1, 10.0),
    Sketcher.Constraint("DistanceX", -1, 1, 0, 2, 4.0),
    Sketcher.Constraint("DistanceY", 1, 2, 1, 1, 32.588402),
    Sketcher.Constraint("DistanceY", 1, 2, -1, 1, 15.512409),
])
sketch12.setExpression("Constraints[8]", "Params.sketch12_width")
pocket5 = body.newObject("PartDesign::Pocket", "Pocket004")
pocket5.Profile = sketch12
pocket5.setExpression("Length", "Params.pocket5_length")

doc.recompute()
